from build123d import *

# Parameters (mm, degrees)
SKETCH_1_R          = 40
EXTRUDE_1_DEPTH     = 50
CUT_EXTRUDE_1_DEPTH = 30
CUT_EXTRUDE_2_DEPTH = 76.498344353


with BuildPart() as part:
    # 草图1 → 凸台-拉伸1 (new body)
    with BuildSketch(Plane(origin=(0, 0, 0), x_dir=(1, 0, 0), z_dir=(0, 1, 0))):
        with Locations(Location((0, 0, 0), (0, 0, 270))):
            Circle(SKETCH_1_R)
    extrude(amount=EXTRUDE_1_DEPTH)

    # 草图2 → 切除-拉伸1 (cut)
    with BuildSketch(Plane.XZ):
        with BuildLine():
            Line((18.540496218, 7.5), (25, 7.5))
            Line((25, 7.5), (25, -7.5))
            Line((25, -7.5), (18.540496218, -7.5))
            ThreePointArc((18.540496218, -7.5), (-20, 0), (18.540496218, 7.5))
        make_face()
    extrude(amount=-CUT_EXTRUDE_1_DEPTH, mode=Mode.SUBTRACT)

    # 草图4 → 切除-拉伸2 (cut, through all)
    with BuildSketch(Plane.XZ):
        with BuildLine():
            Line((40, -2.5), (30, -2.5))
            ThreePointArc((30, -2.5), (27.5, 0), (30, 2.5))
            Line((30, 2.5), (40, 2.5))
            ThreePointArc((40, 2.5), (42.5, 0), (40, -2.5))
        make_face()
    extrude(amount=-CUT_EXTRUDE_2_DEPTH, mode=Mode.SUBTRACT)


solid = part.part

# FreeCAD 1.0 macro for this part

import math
import FreeCAD as App
import Part
import Sketcher

V = App.Vector
Q = App.Units.Quantity

doc = App.newDocument("Part")
body = doc.addObject("PartDesign::Body", "Body")

# Sketch on XZ plane
sketch1 = body.newObject("Sketcher::SketchObject", "Sketch")
sketch1.AttachmentSupport = (doc.getObject("XZ_Plane"), [""])
sketch1.MapMode = "FlatFace"
sketch1.addGeometry(Part.Circle(V(0, 0, 0), V(0, 0, 1), 40), False)
sketch1.addConstraint(Sketcher.Constraint("Coincident", 0, 3, -1, 1))
sketch1.addConstraint(Sketcher.Constraint("Diameter", 0, Q("80 mm")))
pad1 = body.newObject("PartDesign::Pad", "Pad")
pad1.Profile = sketch1
pad1.Length = 50
pad1.Reversed = True

# Sketch on XZ plane
sketch2 = body.newObject("Sketcher::SketchObject", "Sketch001")
sketch2.AttachmentSupport = (doc.getObject("XZ_Plane"), [""])
sketch2.MapMode = "FlatFace"
sketch2.addGeometry(Part.LineSegment(V(25, 8, 0), V(19, 8, 0)), False)
sketch2.addGeometry(Part.ArcOfCircle(Part.Circle(V(0, 0, 0), V(0, 0, 1), 20), math.radians(22), math.radians(338)), False)
sketch2.addGeometry(Part.LineSegment(V(19, -8, 0), V(25, -8, 0)), False)
sketch2.addGeometry(Part.LineSegment(V(25, -8, 0), V(25, 8, 0)), False)
sketch2.addConstraint(Sketcher.Constraint("Coincident", 0, 2, 1, 1))
sketch2.addConstraint(Sketcher.Constraint("Coincident", 1, 2, 2, 1))
sketch2.addConstraint(Sketcher.Constraint("Coincident", 2, 2, 3, 1))
sketch2.addConstraint(Sketcher.Constraint("Coincident", 3, 2, 0, 1))
sketch2.addConstraint(Sketcher.Constraint("Horizontal", 0))
sketch2.addConstraint(Sketcher.Constraint("Horizontal", 2))
sketch2.addConstraint(Sketcher.Constraint("Vertical", 3))
sketch2.addConstraint(Sketcher.Constraint("Coincident", 1, 3, -1, 1))
sketch2.addConstraint(Sketcher.Constraint("Vertical", 0, 2, 1, 2))
sketch2.addConstraint(Sketcher.Constraint("Radius", 1, Q("20 mm")))
sketch2.addConstraint(Sketcher.Constraint("DistanceY", 3, 1, 3, 2, Q("15 mm")))
sketch2.addConstraint(Sketcher.Constraint("DistanceX", -1, 1, 2, 2, Q("25 mm")))
pocket1 = body.newObject("PartDesign::Pocket", "Pocket")
pocket1.Profile = sketch2
pocket1.Length = 30

# Sketch on XZ plane
sketch3 = body.newObject("Sketcher::SketchObject", "Sketch002")
sketch3.AttachmentSupport = (doc.getObject("XZ_Plane"), [""])
sketch3.MapMode = "FlatFace"
sketch3.addGeometry(Part.LineSegment(V(30, -2.5, 0), V(40, -2.5, 0)), False)
sketch3.addGeometry(Part.ArcOfCircle(Part.Circle(V(40, 0, 0), V(0, 0, 1), 2.5), math.radians(-90), math.radians(90)), False)
sketch3.addGeometry(Part.LineSegment(V(40, 2.5, 0), V(30, 2.5, 0)), False)
sketch3.addGeometry(Part.ArcOfCircle(Part.Circle(V(30, 0, 0), V(0, 0, 1), 2.5), math.radians(90), math.radians(270)), False)
sketch3.addConstraint(Sketcher.Constraint("Tangent", 0, 2, 1, 1))
sketch3.addConstraint(Sketcher.Constraint("Tangent", 1, 2, 2, 1))
sketch3.addConstraint(Sketcher.Constraint("Tangent", 2, 2, 3, 1))
sketch3.addConstraint(Sketcher.Constraint("Tangent", 3, 2, 0, 1))
sketch3.addConstraint(Sketcher.Constraint("Horizontal", 0))
sketch3.addConstraint(Sketcher.Constraint("Horizontal", 2))
sketch3.addConstraint(Sketcher.Constraint("PointOnObject", 1, 3, -1))
sketch3.addConstraint(Sketcher.Constraint("Radius", 1, Q("2.5 mm")))
sketch3.addConstraint(Sketcher.Constraint("DistanceX", 0, 1, 0, 2, Q("10 mm")))
sketch3.addConstraint(Sketcher.Constraint("DistanceX", -1, 1, 1, 3, Q("40 mm")))
pocket2 = body.newObject("PartDesign::Pocket", "Pocket001")
pocket2.Profile = sketch3
pocket2.Type = "ThroughAll"

doc.recompute()
